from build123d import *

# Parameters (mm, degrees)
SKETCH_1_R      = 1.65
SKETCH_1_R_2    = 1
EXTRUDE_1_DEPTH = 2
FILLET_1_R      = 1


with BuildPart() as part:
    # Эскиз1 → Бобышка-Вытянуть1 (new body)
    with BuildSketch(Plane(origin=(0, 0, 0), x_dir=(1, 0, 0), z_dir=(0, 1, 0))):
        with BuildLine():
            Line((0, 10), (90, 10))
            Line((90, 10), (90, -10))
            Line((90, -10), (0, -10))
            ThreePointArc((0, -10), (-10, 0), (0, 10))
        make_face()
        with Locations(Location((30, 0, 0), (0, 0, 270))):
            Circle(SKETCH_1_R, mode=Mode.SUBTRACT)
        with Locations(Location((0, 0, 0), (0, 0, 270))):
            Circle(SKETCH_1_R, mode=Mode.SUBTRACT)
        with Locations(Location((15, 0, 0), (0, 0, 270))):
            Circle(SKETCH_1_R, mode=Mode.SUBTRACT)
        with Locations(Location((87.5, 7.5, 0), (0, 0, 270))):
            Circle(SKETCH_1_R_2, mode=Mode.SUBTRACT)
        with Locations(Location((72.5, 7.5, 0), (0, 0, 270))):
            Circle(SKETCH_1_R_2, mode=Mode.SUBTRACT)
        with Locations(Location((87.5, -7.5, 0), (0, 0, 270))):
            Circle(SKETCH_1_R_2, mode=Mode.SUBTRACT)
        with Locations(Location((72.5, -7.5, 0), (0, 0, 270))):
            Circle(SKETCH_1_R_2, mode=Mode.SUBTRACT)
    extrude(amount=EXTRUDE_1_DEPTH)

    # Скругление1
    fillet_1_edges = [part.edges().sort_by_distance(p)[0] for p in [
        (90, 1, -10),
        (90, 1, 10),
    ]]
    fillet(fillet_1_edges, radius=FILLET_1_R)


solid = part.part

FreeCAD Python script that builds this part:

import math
import FreeCAD as App
import Part
import Sketcher

V = App.Vector
Q = App.Units.Quantity


def edges_at(feature, points):
    """Names of the edges that pass closest to the given points."""
    edges = feature.Shape.Edges
    near = lambda p: min(range(len(edges)), key=lambda i: edges[i].distToShape(Part.Vertex(*p))[0])
    return sorted({f"Edge{near(p) + 1}" for p in points})

doc = App.newDocument("Part")
body = doc.addObject("PartDesign::Body", "Body")

sketch1 = doc.addObject("Sketcher::SketchObject", "Sketch")
body.addObject(sketch1)
sketch1.AttachmentSupport = (doc.XZ_Plane, [""])
sketch1.MapMode = "FlatFace"
sketch1.addGeometry(Part.LineSegment(V(90, -10, 0), V(0, -10, 0)), False)
sketch1.addGeometry(Part.ArcOfCircle(Part.Circle(V(0, 0, 0), V(0, 0, 1), 10), math.radians(90), math.radians(270)), False)
sketch1.addGeometry(Part.LineSegment(V(0, 10, 0), V(90, 10, 0)), False)
sketch1.addGeometry(Part.LineSegment(V(90, 10, 0), V(90, -10, 0)), False)
sketch1.addGeometry(Part.Circle(V(87.5, 7.5, 0), V(0, 0, 1), 1), False)
sketch1.addGeometry(Part.Circle(V(72.5, 7.5, 0), V(0, 0, 1), 1), False)
sketch1.addGeometry(Part.Circle(V(87.5, -7.5, 0), V(0, 0, 1), 1), False)
sketch1.addGeometry(Part.Circle(V(72.5, -7.5, 0), V(0, 0, 1), 1), False)
sketch1.addGeometry(Part.Circle(V(30, 0, 0), V(0, 0, 1), 1.6), False)
sketch1.addGeometry(Part.Circle(V(15, 0, 0), V(0, 0, 1), 1.6), False)
sketch1.addGeometry(Part.Circle(V(0, 0, 0), V(0, 0, 1), 1.6), False)
sketch1.addConstraint(Sketcher.Constraint("Tangent", 0, 2, 1, 2))
sketch1.addConstraint(Sketcher.Constraint("Tangent", 1, 1, 2, 1))
sketch1.addConstraint(Sketcher.Constraint("Coincident", 2, 2, 3, 1))
sketch1.addConstraint(Sketcher.Constraint("Coincident", 3, 2, 0, 1))
sketch1.addConstraint(Sketcher.Constraint("Horizontal", 0))
sketch1.addConstraint(Sketcher.Constraint("Horizontal", 2))
sketch1.addConstraint(Sketcher.Constraint("Vertical", 3))
sketch1.addConstraint(Sketcher.Constraint("Coincident", 1, 3, -1, 1))
sketch1.addConstraint(Sketcher.Constraint("Coincident", 10, 3, -1, 1))
sketch1.addConstraint(Sketcher.Constraint("Equal", 4, 5))
sketch1.addConstraint(Sketcher.Constraint("Equal", 5, 6))
sketch1.addConstraint(Sketcher.Constraint("Equal", 6, 7))
sketch1.addConstraint(Sketcher.Constraint("Equal", 8, 9))
sketch1.addConstraint(Sketcher.Constraint("Equal", 9, 10))
sketch1.addConstraint(Sketcher.Constraint("Symmetric", 4, 3, 6, 3, -1))
sketch1.addConstraint(Sketcher.Constraint("Symmetric", 5, 3, 7, 3, -1))
sketch1.addConstraint(Sketcher.Constraint("PointOnObject", 8, 3, -1))
sketch1.addConstraint(Sketcher.Constraint("PointOnObject", 9, 3, -1))
sketch1.addConstraint(Sketcher.Constraint("Horizontal", 4, 3, 5, 3))
sketch1.addConstraint(Sketcher.Constraint("Diameter", 4, Q("2 mm")))
sketch1.addConstraint(Sketcher.Constraint("Radius", 1, Q("10 mm")))
sketch1.addConstraint(Sketcher.Constraint("Diameter", 8, Q("3.3 mm")))
sketch1.addConstraint(Sketcher.Constraint("DistanceX", 0, 2, 0, 1, Q("90 mm")))
sketch1.addConstraint(Sketcher.Constraint("DistanceX", -1, 1, 8, 3, Q("30 mm")))
sketch1.addConstraint(Sketcher.Constraint("DistanceX", -1, 1, 9, 3, Q("15 mm")))
sketch1.addConstraint(Sketcher.Constraint("DistanceX", 5, 3, 4, 3, Q("15 mm")))
sketch1.addConstraint(Sketcher.Constraint("DistanceY", 6, 3, 4, 3, Q("15 mm")))
sketch1.addConstraint(Sketcher.Constraint("DistanceX", -1, 1, 4, 3, Q("87.5 mm")))
pad1 = doc.addObject("PartDesign::Pad", "Pad")
body.addObject(pad1)
pad1.Profile = sketch1
pad1.Length = 2
pad1.Reversed = True
doc.recompute()

fillet = doc.addObject("PartDesign::Fillet", "Fillet")
body.addObject(fillet)
fillet.Base = (pad1, edges_at(pad1, [(90, 1, -10), (90, 1, 10)]))
fillet.Radius = 1

doc.recompute()
